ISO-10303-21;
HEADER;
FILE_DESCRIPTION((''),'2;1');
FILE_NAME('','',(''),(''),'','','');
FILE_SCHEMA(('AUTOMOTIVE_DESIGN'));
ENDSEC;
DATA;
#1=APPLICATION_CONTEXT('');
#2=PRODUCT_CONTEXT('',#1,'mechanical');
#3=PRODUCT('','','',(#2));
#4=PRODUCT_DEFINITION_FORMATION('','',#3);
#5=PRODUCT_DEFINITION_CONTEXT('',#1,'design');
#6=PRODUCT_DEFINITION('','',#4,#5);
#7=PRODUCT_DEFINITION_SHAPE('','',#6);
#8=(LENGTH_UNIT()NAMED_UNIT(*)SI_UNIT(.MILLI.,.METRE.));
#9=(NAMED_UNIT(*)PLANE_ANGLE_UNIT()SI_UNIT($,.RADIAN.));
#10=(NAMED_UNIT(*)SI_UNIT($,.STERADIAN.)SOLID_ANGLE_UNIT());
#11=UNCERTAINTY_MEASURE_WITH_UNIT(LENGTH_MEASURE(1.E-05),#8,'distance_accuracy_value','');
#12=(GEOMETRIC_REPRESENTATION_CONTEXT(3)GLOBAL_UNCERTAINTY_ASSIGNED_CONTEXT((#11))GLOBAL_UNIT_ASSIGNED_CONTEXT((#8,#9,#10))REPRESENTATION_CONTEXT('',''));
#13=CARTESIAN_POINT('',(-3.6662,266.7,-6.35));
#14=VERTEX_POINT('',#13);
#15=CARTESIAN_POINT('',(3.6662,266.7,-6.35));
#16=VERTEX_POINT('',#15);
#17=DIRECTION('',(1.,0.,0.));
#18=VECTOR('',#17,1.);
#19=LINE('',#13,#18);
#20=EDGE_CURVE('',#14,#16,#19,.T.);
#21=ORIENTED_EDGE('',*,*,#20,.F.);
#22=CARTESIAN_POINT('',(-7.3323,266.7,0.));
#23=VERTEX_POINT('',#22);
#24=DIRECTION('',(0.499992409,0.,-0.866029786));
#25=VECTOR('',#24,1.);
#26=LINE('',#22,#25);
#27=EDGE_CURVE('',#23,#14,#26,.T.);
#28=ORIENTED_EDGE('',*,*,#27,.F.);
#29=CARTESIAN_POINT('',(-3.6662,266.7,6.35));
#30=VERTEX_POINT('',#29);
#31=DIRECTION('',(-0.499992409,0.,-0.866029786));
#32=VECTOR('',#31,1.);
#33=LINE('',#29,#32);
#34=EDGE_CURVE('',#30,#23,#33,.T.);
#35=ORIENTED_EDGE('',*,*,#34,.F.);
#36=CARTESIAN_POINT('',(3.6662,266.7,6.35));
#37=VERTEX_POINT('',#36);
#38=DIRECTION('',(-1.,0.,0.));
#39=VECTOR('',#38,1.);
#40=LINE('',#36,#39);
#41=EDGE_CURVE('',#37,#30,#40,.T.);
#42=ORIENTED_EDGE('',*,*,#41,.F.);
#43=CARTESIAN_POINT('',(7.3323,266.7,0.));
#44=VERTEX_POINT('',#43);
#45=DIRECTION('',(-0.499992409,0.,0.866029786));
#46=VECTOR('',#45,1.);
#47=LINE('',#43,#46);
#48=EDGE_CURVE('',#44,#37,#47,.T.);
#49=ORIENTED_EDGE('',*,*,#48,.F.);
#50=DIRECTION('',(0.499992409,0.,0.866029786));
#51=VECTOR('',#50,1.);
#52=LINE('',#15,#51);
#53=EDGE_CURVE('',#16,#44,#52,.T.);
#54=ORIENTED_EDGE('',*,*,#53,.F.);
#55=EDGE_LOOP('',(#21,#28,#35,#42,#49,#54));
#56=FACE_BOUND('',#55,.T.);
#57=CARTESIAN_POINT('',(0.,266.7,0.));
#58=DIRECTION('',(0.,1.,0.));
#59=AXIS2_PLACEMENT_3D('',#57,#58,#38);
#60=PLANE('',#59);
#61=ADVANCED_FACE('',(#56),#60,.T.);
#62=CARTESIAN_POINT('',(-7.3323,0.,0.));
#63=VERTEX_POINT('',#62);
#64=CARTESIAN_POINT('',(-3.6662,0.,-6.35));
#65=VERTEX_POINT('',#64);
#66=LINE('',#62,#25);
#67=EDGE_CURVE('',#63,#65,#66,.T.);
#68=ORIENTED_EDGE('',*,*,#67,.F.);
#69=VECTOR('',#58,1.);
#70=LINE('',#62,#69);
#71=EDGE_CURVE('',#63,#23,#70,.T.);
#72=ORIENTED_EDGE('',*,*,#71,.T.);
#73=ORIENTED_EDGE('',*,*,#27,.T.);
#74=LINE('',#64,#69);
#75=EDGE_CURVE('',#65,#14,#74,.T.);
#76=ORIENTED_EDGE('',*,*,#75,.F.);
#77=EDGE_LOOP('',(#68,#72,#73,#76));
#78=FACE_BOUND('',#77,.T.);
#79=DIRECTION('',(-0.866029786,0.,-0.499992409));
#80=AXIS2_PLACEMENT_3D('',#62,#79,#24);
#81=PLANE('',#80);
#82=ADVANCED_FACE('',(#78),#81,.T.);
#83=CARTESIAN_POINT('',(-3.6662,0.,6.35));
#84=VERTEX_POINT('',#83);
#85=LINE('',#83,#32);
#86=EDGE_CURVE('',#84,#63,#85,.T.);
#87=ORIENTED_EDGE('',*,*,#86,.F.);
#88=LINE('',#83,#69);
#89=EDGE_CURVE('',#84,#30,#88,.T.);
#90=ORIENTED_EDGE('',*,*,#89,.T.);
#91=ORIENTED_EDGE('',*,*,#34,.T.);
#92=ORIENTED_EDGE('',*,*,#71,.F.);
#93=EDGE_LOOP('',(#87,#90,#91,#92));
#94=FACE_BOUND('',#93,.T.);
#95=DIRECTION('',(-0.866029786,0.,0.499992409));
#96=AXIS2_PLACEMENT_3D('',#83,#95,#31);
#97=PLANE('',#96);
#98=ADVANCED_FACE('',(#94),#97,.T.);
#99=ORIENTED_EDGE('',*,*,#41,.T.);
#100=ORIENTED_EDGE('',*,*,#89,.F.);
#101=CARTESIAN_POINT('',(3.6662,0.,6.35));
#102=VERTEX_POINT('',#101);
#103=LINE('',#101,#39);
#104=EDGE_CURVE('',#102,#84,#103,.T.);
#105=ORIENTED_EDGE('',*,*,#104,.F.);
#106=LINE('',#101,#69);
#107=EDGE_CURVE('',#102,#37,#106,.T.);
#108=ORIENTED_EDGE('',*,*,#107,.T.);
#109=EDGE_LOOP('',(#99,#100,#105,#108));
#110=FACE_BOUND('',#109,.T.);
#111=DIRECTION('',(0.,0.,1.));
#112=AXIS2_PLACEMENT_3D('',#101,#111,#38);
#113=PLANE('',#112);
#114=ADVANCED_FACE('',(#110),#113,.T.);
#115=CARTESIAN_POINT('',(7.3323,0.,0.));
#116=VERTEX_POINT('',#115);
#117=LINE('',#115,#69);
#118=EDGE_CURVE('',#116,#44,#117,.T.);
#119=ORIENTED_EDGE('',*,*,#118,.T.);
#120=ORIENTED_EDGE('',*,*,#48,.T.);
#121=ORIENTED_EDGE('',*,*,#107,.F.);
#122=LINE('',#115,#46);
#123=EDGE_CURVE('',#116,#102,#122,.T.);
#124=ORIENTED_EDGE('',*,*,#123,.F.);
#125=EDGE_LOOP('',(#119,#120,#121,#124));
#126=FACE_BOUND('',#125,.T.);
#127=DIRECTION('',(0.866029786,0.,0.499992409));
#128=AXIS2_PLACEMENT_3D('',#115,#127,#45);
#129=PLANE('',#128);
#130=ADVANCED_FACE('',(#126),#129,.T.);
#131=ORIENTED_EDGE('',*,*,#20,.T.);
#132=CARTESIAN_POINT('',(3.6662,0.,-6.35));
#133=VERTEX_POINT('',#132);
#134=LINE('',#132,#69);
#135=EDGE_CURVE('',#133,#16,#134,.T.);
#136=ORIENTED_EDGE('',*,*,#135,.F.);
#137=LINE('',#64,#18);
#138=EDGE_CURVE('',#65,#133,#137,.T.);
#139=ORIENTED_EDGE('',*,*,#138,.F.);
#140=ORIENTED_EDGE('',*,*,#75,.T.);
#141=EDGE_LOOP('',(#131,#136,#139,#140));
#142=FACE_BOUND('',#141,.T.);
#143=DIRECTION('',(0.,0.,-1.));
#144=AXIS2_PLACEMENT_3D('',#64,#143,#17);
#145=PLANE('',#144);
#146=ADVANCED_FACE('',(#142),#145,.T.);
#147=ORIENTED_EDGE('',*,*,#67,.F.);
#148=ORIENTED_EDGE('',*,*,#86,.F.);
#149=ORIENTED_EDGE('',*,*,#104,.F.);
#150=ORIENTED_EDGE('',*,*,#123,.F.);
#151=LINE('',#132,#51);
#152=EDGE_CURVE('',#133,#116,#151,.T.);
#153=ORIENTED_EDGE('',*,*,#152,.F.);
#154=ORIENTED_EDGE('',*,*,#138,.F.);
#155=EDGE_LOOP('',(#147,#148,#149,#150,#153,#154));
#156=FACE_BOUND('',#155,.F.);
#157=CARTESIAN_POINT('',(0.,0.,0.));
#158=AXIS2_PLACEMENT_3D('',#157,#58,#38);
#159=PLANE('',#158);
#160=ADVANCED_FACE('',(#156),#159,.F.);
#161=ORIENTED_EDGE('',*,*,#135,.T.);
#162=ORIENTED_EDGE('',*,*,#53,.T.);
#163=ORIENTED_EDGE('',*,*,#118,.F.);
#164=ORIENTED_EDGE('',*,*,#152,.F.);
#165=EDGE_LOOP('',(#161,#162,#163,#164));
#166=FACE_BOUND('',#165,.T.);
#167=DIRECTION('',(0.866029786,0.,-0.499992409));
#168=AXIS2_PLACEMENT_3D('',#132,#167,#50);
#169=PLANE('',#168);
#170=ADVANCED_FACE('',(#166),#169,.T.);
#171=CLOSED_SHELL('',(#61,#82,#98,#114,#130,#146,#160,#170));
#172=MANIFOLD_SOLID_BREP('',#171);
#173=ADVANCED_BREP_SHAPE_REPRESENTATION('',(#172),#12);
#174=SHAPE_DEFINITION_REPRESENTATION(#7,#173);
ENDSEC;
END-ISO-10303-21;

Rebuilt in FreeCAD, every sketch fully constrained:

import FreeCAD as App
import Part
import Sketcher
from FreeCAD import Vector
Q = App.Units.Quantity


def add_polygon(sketch, points):
    """Adds a closed chain of lines whose ends are joined by coincident constraints."""
    first, n = sketch.GeometryCount, len(points)
    for a, b in zip(points, points[1:] + points[:1]):
        sketch.addGeometry(Part.LineSegment(App.Vector(*a, 0), App.Vector(*b, 0)), False)
    for i in range(n):
        sketch.addConstraint(Sketcher.Constraint("Coincident", first + i, 2, first + (i + 1) % n, 1))

doc = App.newDocument("Part")
params = doc.addObject("Spreadsheet::Sheet", "Params")
for row, (alias, value) in enumerate([
    ("pad1_length", "10.5 in"),
], start=1):
    params.set(f"A{row}", alias)
    params.set(f"B{row}", "=" + value)
    params.setAlias(f"B{row}", alias)

body = doc.addObject("PartDesign::Body", "Body")

sketch1 = body.newObject("Sketcher::SketchObject", "Sketch")
sketch1.AttachmentSupport = (doc.getObject("XZ_Plane"), [""])
sketch1.MapMode = "FlatFace"
add_polygon(sketch1, [(-7.3323, 0), (-3.6662, 6.35), (3.6662, 6.35), (7.3323, 0), (3.6662, -6.35), (-3.6662, -6.35)])
sketch1.addConstraint(Sketcher.Constraint("Horizontal", 1))
sketch1.addConstraint(Sketcher.Constraint("Horizontal", 4))
sketch1.addConstraint(Sketcher.Constraint("Symmetric", 0, 2, 3, 2, -1, 1))
sketch1.addConstraint(Sketcher.Constraint("Symmetric", 2, 2, 5, 2, -1, 1))
sketch1.addConstraint(Sketcher.Constraint("PointOnObject", 2, 2, -1))
sketch1.addConstraint(Sketcher.Constraint("Parallel", 2, 5))
sketch1.addConstraint(Sketcher.Constraint("Vertical", 1, 2, 3, 2))
sketch1.addConstraint(Sketcher.Constraint("DistanceY", 3, 2, 1, 2, Q("0.5 in")))
sketch1.addConstraint(Sketcher.Constraint("Angle", 0, Q("60.0005 deg")))
sketch1.addConstraint(Sketcher.Constraint("DistanceX", 0, 2, 2, 2, Q("0.433 in")))
pad1 = body.newObject("PartDesign::Pad", "Pad")
pad1.Profile = sketch1
pad1.setExpression("Length", "Params.pad1_length")
pad1.Reversed = True

doc.recompute()
